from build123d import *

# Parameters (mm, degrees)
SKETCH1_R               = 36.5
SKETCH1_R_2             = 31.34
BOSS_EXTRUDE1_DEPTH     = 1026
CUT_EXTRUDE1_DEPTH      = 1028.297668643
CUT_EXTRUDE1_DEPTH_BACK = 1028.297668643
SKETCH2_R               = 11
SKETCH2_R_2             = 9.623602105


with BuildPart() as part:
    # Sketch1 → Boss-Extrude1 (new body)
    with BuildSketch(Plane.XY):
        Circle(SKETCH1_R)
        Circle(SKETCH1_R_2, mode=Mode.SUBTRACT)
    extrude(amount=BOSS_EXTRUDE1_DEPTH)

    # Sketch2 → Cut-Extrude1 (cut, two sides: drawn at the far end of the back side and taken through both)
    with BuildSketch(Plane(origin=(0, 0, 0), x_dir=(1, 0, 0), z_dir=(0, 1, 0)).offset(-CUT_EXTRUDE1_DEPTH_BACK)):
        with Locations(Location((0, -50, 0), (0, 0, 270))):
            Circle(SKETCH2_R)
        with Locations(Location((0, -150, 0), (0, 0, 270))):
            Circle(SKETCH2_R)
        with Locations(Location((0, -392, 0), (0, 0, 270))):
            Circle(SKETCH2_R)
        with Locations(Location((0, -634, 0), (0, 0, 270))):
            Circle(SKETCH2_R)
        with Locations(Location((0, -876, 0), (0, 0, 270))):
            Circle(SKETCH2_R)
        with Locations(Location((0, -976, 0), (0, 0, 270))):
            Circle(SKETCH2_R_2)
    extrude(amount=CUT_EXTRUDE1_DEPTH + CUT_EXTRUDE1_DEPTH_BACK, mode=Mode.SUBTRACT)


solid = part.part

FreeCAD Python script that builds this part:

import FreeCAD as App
import Part
import Sketcher

doc = App.newDocument("Part")
body = doc.addObject("PartDesign::Body", "Body")

# Sketch on XY plane
sketch1 = doc.addObject("Sketcher::SketchObject", "Sketch")
body.addObject(sketch1)
sketch1.AttachmentSupport = (doc.XY_Plane, [""])
sketch1.MapMode = "FlatFace"
sketch1.addGeometry(Part.Circle(App.Vector(0, 0, 0), App.Vector(0, 0, 1), 36), False)
sketch1.addGeometry(Part.Circle(App.Vector(0, 0, 0), App.Vector(0, 0, 1), 31), False)
sketch1.addConstraint(Sketcher.Constraint("Coincident", 0, 3, -1, 1))
sketch1.addConstraint(Sketcher.Constraint("Coincident", 1, 3, -1, 1))
sketch1.addConstraint(Sketcher.Constraint("Diameter", 0, 73.0))
sketch1.addConstraint(Sketcher.Constraint("Diameter", 1, 62.68))
pad1 = doc.addObject("PartDesign::Pad", "Pad")
body.addObject(pad1)
pad1.Profile = sketch1
pad1.Length = 1026

# Sketch on XZ plane
sketch2 = doc.addObject("Sketcher::SketchObject", "Sketch001")
body.addObject(sketch2)
sketch2.AttachmentSupport = (doc.XZ_Plane, [""])
sketch2.MapMode = "FlatFace"
sketch2.addGeometry(Part.Circle(App.Vector(0, 50, 0), App.Vector(0, 0, 1), 11), False)
sketch2.addGeometry(Part.Circle(App.Vector(0, 150, 0), App.Vector(0, 0, 1), 11), False)
sketch2.addGeometry(Part.Circle(App.Vector(0, 392, 0), App.Vector(0, 0, 1), 11), False)
sketch2.addGeometry(Part.Circle(App.Vector(0, 634, 0), App.Vector(0, 0, 1), 11), False)
sketch2.addGeometry(Part.Circle(App.Vector(0, 876, 0), App.Vector(0, 0, 1), 11), False)
sketch2.addGeometry(Part.Circle(App.Vector(0, 976, 0), App.Vector(0, 0, 1), 10), False)
sketch2.addConstraint(Sketcher.Constraint("Equal", 0, 1))
sketch2.addConstraint(Sketcher.Constraint("Equal", 1, 2))
sketch2.addConstraint(Sketcher.Constraint("Equal", 2, 3))
sketch2.addConstraint(Sketcher.Constraint("Equal", 3, 4))
sketch2.addConstraint(Sketcher.Constraint("PointOnObject", 0, 3, -2))
sketch2.addConstraint(Sketcher.Constraint("PointOnObject", 1, 3, -2))
sketch2.addConstraint(Sketcher.Constraint("PointOnObject", 2, 3, -2))
sketch2.addConstraint(Sketcher.Constraint("PointOnObject", 3, 3, -2))
sketch2.addConstraint(Sketcher.Constraint("PointOnObject", 4, 3, -2))
sketch2.addConstraint(Sketcher.Constraint("PointOnObject", 5, 3, -2))
sketch2.addConstraint(Sketcher.Constraint("Diameter", 0, 22.0))
sketch2.addConstraint(Sketcher.Constraint("DistanceY", -1, 1, 0, 3, 50.0))
sketch2.addConstraint(Sketcher.Constraint("DistanceY", -1, 1, 1, 3, 150.0))
sketch2.addConstraint(Sketcher.Constraint("DistanceY", -1, 1, 2, 3, 392.0))
sketch2.addConstraint(Sketcher.Constraint("DistanceY", -1, 1, 3, 3, 634.0))
sketch2.addConstraint(Sketcher.Constraint("DistanceY", -1, 1, 4, 3, 876.0))
sketch2.addConstraint(Sketcher.Constraint("DistanceY", -1, 1, 5, 3, 976.0))
sketch2.addConstraint(Sketcher.Constraint("Diameter", 5, 19.247204))
pocket1 = doc.addObject("PartDesign::Pocket", "Pocket")
body.addObject(pocket1)
pocket1.Profile = sketch2
pocket1.Type = "ThroughAll"
pocket1.Midplane = True

doc.recompute()
